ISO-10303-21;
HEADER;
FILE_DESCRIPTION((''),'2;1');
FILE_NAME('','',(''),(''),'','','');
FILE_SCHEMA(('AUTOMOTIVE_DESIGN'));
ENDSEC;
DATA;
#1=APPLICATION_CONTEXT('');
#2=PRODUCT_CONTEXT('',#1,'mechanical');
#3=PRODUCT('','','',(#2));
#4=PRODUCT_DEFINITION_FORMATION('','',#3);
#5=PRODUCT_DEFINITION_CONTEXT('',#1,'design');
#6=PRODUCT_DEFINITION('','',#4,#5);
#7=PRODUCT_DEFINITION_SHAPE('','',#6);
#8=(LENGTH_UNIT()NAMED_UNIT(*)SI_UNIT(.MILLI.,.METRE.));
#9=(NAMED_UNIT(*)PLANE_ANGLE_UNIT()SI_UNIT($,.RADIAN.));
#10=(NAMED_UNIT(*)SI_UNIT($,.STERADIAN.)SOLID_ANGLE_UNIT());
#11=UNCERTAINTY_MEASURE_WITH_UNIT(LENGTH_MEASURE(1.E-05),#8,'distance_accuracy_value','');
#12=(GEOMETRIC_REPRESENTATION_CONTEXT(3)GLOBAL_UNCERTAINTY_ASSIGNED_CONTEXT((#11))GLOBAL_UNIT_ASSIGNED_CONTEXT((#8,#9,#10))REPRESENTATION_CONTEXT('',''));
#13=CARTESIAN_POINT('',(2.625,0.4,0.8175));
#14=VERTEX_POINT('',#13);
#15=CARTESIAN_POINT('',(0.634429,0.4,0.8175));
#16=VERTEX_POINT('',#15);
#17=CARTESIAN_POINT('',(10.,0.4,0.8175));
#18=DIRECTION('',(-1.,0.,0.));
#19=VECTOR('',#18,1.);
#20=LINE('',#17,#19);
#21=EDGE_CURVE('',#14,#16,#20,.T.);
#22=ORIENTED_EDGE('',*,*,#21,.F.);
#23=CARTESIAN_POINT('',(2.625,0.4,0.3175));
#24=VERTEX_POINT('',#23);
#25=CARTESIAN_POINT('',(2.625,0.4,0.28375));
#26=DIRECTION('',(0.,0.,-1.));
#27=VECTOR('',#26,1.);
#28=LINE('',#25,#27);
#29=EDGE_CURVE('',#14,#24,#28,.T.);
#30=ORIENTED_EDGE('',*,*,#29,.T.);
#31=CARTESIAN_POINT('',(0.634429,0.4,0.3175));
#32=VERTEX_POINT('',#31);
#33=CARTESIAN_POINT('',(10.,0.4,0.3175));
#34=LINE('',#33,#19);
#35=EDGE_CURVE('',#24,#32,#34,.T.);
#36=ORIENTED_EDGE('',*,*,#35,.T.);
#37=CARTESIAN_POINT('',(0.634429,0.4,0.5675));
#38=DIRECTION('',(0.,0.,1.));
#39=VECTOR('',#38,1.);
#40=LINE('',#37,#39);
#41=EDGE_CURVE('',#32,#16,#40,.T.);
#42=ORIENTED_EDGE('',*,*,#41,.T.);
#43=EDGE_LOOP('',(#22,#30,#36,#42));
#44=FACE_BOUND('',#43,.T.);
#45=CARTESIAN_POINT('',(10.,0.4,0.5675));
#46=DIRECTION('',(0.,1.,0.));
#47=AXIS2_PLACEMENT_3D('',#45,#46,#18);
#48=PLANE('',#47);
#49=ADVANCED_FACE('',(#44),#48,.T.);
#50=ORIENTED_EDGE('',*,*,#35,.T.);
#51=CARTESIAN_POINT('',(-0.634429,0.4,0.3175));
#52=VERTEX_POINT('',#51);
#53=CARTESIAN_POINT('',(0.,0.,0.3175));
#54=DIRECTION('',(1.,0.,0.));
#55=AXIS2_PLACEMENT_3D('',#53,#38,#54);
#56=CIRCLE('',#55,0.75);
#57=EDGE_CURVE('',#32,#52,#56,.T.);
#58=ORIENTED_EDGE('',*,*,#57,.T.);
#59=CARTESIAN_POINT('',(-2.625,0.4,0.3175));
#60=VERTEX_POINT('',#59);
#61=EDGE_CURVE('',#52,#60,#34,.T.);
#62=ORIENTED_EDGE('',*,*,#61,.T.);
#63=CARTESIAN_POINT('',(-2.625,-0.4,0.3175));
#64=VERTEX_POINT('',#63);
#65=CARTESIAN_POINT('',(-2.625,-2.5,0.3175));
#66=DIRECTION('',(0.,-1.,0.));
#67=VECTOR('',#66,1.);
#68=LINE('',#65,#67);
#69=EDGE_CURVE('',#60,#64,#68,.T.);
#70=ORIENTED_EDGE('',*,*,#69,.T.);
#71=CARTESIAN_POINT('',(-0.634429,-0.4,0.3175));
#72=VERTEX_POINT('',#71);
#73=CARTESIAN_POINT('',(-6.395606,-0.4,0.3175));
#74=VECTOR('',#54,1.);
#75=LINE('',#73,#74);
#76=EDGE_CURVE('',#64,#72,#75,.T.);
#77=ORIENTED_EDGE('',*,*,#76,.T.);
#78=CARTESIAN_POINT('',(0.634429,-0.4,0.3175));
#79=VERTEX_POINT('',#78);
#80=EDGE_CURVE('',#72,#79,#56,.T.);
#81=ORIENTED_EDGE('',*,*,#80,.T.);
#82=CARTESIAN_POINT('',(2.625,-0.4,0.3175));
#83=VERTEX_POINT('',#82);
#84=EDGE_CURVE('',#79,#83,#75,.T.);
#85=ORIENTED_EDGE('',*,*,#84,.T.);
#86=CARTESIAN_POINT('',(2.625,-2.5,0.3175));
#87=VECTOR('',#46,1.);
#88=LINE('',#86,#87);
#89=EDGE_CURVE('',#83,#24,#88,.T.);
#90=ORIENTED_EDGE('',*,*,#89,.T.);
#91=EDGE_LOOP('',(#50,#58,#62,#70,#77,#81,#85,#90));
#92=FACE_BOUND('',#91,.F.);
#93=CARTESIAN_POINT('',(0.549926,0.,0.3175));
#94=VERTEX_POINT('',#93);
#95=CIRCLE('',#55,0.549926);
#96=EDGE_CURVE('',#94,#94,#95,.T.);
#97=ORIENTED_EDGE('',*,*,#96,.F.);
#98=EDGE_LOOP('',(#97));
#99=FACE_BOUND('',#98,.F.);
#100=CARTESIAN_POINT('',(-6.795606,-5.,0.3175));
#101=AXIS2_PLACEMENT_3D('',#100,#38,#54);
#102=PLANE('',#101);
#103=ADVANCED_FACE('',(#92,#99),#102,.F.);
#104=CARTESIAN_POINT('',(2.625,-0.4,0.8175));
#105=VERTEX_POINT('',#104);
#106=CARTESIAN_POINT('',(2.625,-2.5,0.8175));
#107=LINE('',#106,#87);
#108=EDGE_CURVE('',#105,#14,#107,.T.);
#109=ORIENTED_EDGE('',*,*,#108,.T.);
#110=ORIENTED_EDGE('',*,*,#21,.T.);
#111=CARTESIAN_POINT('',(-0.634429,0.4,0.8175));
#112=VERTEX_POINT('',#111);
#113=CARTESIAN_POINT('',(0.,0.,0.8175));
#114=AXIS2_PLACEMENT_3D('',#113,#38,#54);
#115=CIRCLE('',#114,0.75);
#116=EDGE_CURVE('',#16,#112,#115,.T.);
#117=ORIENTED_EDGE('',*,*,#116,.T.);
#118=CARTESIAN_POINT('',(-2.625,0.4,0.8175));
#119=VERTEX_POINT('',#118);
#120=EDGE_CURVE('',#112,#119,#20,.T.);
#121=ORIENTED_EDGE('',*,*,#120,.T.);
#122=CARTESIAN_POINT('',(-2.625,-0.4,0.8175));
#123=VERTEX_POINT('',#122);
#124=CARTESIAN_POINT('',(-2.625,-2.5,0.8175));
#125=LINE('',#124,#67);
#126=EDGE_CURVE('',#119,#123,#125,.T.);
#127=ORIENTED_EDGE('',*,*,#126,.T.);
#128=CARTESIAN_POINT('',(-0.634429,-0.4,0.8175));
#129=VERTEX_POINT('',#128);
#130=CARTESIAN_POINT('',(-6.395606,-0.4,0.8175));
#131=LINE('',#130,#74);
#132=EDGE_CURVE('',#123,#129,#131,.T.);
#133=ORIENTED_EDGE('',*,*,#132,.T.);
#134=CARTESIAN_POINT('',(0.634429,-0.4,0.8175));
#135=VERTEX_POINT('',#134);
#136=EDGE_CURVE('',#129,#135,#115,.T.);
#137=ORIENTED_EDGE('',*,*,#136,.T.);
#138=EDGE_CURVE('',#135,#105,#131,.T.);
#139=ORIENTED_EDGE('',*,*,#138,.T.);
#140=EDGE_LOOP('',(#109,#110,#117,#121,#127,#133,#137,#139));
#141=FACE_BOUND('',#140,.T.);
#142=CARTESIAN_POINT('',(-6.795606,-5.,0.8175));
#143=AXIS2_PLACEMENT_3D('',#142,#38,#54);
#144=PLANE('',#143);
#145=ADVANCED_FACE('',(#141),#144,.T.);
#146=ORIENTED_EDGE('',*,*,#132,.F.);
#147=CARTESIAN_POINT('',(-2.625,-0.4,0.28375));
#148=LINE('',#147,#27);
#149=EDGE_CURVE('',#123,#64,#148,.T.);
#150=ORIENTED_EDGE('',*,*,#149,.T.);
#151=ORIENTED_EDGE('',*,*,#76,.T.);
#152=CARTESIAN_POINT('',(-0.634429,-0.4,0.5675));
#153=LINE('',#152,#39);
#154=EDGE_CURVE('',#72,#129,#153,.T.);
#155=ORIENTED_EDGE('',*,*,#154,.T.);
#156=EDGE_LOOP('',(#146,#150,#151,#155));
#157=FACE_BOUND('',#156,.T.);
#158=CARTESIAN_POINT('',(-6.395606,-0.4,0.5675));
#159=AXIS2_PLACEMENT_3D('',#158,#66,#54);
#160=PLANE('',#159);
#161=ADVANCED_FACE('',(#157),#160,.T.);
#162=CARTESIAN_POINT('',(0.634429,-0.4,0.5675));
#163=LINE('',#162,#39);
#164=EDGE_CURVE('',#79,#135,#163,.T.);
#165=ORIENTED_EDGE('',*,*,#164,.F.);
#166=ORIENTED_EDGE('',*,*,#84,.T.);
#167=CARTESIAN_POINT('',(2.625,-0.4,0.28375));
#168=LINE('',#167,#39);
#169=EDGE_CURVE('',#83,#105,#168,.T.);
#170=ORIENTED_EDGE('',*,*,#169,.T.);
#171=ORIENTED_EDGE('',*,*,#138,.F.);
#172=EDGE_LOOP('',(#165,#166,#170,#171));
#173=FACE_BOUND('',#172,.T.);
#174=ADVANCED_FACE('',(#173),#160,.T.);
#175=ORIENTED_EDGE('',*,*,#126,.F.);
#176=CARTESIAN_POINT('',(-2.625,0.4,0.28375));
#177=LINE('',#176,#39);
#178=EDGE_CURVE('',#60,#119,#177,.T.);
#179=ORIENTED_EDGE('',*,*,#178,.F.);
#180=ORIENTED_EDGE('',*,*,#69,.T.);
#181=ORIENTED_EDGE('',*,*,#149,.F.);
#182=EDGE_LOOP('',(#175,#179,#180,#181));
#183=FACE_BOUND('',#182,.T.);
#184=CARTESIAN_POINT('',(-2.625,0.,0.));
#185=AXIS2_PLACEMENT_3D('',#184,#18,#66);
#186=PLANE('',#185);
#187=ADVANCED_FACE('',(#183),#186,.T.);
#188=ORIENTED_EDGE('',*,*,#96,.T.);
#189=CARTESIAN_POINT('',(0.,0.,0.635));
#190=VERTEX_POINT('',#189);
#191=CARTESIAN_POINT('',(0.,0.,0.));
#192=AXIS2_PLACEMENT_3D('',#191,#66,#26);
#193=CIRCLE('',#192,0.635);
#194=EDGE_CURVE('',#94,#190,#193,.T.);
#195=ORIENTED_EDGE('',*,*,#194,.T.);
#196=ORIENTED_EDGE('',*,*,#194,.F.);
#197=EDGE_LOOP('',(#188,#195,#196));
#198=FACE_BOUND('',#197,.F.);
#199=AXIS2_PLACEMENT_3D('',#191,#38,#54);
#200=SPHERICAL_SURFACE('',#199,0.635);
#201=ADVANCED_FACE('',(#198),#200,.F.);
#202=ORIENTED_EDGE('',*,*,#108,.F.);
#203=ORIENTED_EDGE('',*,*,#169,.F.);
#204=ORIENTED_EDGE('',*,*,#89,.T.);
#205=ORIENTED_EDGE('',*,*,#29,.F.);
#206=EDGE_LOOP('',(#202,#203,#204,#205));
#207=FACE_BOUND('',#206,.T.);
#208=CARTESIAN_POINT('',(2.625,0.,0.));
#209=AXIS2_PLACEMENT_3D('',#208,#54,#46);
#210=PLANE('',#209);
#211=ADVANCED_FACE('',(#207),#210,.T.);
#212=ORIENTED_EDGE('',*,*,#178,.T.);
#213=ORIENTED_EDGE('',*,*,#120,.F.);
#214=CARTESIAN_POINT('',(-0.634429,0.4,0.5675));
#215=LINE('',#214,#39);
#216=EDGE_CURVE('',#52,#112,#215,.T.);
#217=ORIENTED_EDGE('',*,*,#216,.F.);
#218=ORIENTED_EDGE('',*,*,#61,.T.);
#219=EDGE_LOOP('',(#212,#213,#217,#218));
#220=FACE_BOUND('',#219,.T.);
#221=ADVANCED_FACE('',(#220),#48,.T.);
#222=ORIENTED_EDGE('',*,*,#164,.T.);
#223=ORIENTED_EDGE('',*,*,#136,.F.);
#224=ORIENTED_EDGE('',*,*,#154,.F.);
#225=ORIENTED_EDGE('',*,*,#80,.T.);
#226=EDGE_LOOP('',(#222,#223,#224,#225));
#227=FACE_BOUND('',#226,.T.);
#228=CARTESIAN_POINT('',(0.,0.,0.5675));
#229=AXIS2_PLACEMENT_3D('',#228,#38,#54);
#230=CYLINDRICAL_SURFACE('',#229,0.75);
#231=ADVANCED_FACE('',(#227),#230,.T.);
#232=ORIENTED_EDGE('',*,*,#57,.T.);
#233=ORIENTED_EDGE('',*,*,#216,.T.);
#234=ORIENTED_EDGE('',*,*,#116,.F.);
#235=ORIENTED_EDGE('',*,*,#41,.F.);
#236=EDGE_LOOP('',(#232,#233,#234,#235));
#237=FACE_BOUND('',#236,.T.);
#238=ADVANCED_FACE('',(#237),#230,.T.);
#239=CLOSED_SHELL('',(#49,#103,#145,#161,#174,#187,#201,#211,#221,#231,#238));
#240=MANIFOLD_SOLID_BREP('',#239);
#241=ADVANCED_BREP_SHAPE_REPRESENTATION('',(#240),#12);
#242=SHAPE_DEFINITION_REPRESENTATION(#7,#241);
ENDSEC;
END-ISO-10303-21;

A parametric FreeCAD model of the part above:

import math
import FreeCAD as App
import Part
import Sketcher

V = App.Vector
Q = App.Units.Quantity

doc = App.newDocument("Part")
body = doc.addObject("PartDesign::Body", "Body")

# Sketch on XY plane
sketch1 = doc.addObject("Sketcher::SketchObject", "Sketch")
body.addObject(sketch1)
sketch1.AttachmentSupport = (doc.XY_Plane, [""])
sketch1.MapMode = "FlatFace"
sketch1.AttachmentOffset = App.Placement(V(0, 0, 0.5675), App.Rotation())
sketch1.addGeometry([
    Part.LineSegment(V(-7.2, 5, 0), V(-7.2, -5, 0)),  # 0
    Part.LineSegment(V(-7.2, -5, 0), V(-6.4, -5, 0)),  # 1
    Part.LineSegment(V(-6.4, -5, 0), V(-6.4, -0.4, 0)),  # 2
    Part.LineSegment(V(-6.4, -0.4, 0), V(10, -0.4, 0)),  # 3
    Part.LineSegment(V(10, -0.4, 0), V(10, 0.4, 0)),  # 4
    Part.LineSegment(V(10, 0.4, 0), V(-6.4, 0.4, 0)),  # 5
    Part.LineSegment(V(-6.4, 0.4, 0), V(-6.4, 5, 0)),  # 6
    Part.LineSegment(V(-6.4, 5, 0), V(-7.2, 5, 0)),  # 7
], False)
sketch1.addConstraint([
    Sketcher.Constraint("Coincident", 0, 2, 1, 1),
    Sketcher.Constraint("Coincident", 1, 2, 2, 1),
    Sketcher.Constraint("Coincident", 2, 2, 3, 1),
    Sketcher.Constraint("Coincident", 3, 2, 4, 1),
    Sketcher.Constraint("Coincident", 4, 2, 5, 1),
    Sketcher.Constraint("Coincident", 5, 2, 6, 1),
    Sketcher.Constraint("Coincident", 6, 2, 7, 1),
    Sketcher.Constraint("Coincident", 7, 2, 0, 1),
    Sketcher.Constraint("Vertical", 0),
    Sketcher.Constraint("Horizontal", 1),
    Sketcher.Constraint("Vertical", 2),
    Sketcher.Constraint("Horizontal", 3),
    Sketcher.Constraint("Vertical", 4),
    Sketcher.Constraint("Horizontal", 5),
    Sketcher.Constraint("Vertical", 6),
    Sketcher.Constraint("Horizontal", 7),
    Sketcher.Constraint("Symmetric", 2, 2, 5, 2, -1),
    Sketcher.Constraint("Equal", 7, 4),
    Sketcher.Constraint("Equal", 2, 6),
    Sketcher.Constraint("DistanceY", 0, 2, 0, 1, Q("10 mm")),
    Sketcher.Constraint("DistanceX", 1, 1, 1, 2, Q("0.8 mm")),
    Sketcher.Constraint("DistanceX", -1, 1, 3, 2, Q("10 mm")),
    Sketcher.Constraint("DistanceX", 3, 1, 3, 2, Q("16.395606 mm")),
])
pad1 = doc.addObject("PartDesign::Pad", "Pad")
body.addObject(pad1)
pad1.Profile = sketch1
pad1.Length = 0.5
pad1.Midplane = True

# Sketch on XY plane
sketch2 = doc.addObject("Sketcher::SketchObject", "Sketch001")
body.addObject(sketch2)
sketch2.AttachmentSupport = (doc.XY_Plane, [""])
sketch2.MapMode = "FlatFace"
sketch2.AttachmentOffset = App.Placement(V(0, 0, 0.5675), App.Rotation())
sketch2.addGeometry(Part.Circle(V(0, 0, 0), V(0, 0, 1), 0.8), False)
sketch2.addConstraint([
    Sketcher.Constraint("Coincident", 0, 3, -1, 1),
    Sketcher.Constraint("Diameter", 0, Q("1.5 mm")),
])
pad2 = doc.addObject("PartDesign::Pad", "Pad001")
body.addObject(pad2)
pad2.Profile = sketch2
pad2.Length = 0.5
pad2.Midplane = True

# Sketch on XY plane
sketch3 = doc.addObject("Sketcher::SketchObject", "Sketch002")
body.addObject(sketch3)
sketch3.AttachmentSupport = (doc.XY_Plane, [""])
sketch3.MapMode = "FlatFace"
sketch3.AttachmentOffset = App.Placement(V(0, 0, 0.5675), App.Rotation())
sketch3.addGeometry(Part.Circle(V(-6.8, 5, 0), V(0, 0, 1), 0.8), False)
sketch3.addConstraint([
    Sketcher.Constraint("Diameter", 0, Q("1.5 mm")),
    Sketcher.Constraint("DistanceY", -1, 1, 0, 3, Q("5 mm")),
    Sketcher.Constraint("DistanceX", 0, 3, -1, 1, Q("6.795606 mm")),
])
pad3 = doc.addObject("PartDesign::Pad", "Pad002")
body.addObject(pad3)
pad3.Profile = sketch3
pad3.Length = 0.5
pad3.Midplane = True

# Sketch on XY plane
sketch4 = doc.addObject("Sketcher::SketchObject", "Sketch003")
body.addObject(sketch4)
sketch4.AttachmentSupport = (doc.XY_Plane, [""])
sketch4.MapMode = "FlatFace"
sketch4.AttachmentOffset = App.Placement(V(0, 0, 0.5675), App.Rotation())
sketch4.addGeometry(Part.Circle(V(-6.8, -5, 0), V(0, 0, 1), 0.8), False)
sketch4.addConstraint([
    Sketcher.Constraint("Diameter", 0, Q("1.5 mm")),
    Sketcher.Constraint("DistanceY", 0, 3, -1, 1, Q("5 mm")),
    Sketcher.Constraint("DistanceX", 0, 3, -1, 1, Q("6.795606 mm")),
])
pad4 = doc.addObject("PartDesign::Pad", "Pad003")
body.addObject(pad4)
pad4.Profile = sketch4
pad4.Length = 0.5
pad4.Midplane = True

# Sketch on XZ plane
sketch5 = doc.addObject("Sketcher::SketchObject", "Sketch004")
body.addObject(sketch5)
sketch5.AttachmentSupport = (doc.XZ_Plane, [""])
sketch5.MapMode = "FlatFace"
sketch5.addGeometry([
    Part.ArcOfCircle(Part.Circle(V(0, 0, 0), V(0, 0, 1), 0.6), math.radians(-90), math.radians(90)),
    Part.LineSegment(V(0, 0.6, 0), V(0, -0.6, 0)),
], False)
sketch5.addConstraint([
    Sketcher.Constraint("Coincident", 0, 1, 1, 2),
    Sketcher.Constraint("Coincident", 1, 1, 0, 2),
    Sketcher.Constraint("Vertical", 1),
    Sketcher.Constraint("Coincident", 0, 3, -1, 1),
    Sketcher.Constraint("PointOnObject", 0, 1, -2),
    Sketcher.Constraint("Radius", 0, Q("0.635 mm")),
])
groove = doc.addObject("PartDesign::Groove", "Groove")
body.addObject(groove)
groove.Profile = sketch5
groove.ReferenceAxis = (sketch5, ["V_Axis"])
groove.Angle = 360

# Sketch on XZ plane
sketch6 = doc.addObject("Sketcher::SketchObject", "Sketch005")
body.addObject(sketch6)
sketch6.AttachmentSupport = (doc.XZ_Plane, [""])
sketch6.MapMode = "FlatFace"
sketch6.AttachmentOffset = App.Placement(V(0, 0, -5), App.Rotation())
sketch6.addGeometry([
    Part.ArcOfCircle(Part.Circle(V(-6.8, 1.1, 0), V(0, 0, 1), 0.6), math.radians(-90), math.radians(90)),
    Part.LineSegment(V(-6.8, 1.8, 0), V(-6.8, 0.5, 0)),
], False)
sketch6.addGeometry(Part.LineSegment(V(-6.8, 0.5, 0), V(-6.8, 1.8, 0)), True)  # axis
sketch6.addConstraint([
    Sketcher.Constraint("Coincident", 0, 1, 1, 2),
    Sketcher.Constraint("Coincident", 1, 1, 0, 2),
    Sketcher.Constraint("Vertical", 1),
    Sketcher.Constraint("Vertical", 2),
    Sketcher.Constraint("Coincident", 2, 1, 0, 1),
    Sketcher.Constraint("Equal", 1, 2),
    Sketcher.Constraint("Radius", 0, Q("0.635 mm")),
    Sketcher.Constraint("DistanceY", -1, 1, 0, 1, Q("0.5 mm")),
    Sketcher.Constraint("DistanceX", 0, 3, -1, 1, Q("6.795606 mm")),
    Sketcher.Constraint("DistanceX", 0, 1, -1, 1, Q("6.795606 mm")),
])
groove2 = doc.addObject("PartDesign::Groove", "Groove001")
body.addObject(groove2)
groove2.Profile = sketch6
groove2.ReferenceAxis = (sketch6, ["Axis0"])
groove2.Angle = 360

# Sketch on XZ plane
sketch7 = doc.addObject("Sketcher::SketchObject", "Sketch006")
body.addObject(sketch7)
sketch7.AttachmentSupport = (doc.XZ_Plane, [""])
sketch7.MapMode = "FlatFace"
sketch7.AttachmentOffset = App.Placement(V(0, 0, 5), App.Rotation())
sketch7.addGeometry([
    Part.ArcOfCircle(Part.Circle(V(-6.8, 1.1, 0), V(0, 0, 1), 0.6), math.radians(-90), math.radians(90)),
    Part.LineSegment(V(-6.8, 1.8, 0), V(-6.8, 0.5, 0)),
], False)
sketch7.addGeometry(Part.LineSegment(V(-6.8, 0.5, 0), V(-6.8, 1.8, 0)), True)  # axis
sketch7.addConstraint([
    Sketcher.Constraint("Coincident", 0, 1, 1, 2),
    Sketcher.Constraint("Coincident", 1, 1, 0, 2),
    Sketcher.Constraint("Vertical", 1),
    Sketcher.Constraint("Vertical", 2),
    Sketcher.Constraint("Coincident", 2, 1, 0, 1),
    Sketcher.Constraint("Equal", 1, 2),
    Sketcher.Constraint("Radius", 0, Q("0.635 mm")),
    Sketcher.Constraint("DistanceY", -1, 1, 0, 1, Q("0.5 mm")),
    Sketcher.Constraint("DistanceX", 0, 3, -1, 1, Q("6.795606 mm")),
    Sketcher.Constraint("DistanceX", 0, 1, -1, 1, Q("6.795606 mm")),
])
groove3 = doc.addObject("PartDesign::Groove", "Groove002")
body.addObject(groove3)
groove3.Profile = sketch7
groove3.ReferenceAxis = (sketch7, ["Axis0"])
groove3.Angle = 360

# Sketch on XZ plane
sketch8 = doc.addObject("Sketcher::SketchObject", "Sketch007")
body.addObject(sketch8)
sketch8.AttachmentSupport = (doc.XZ_Plane, [""])
sketch8.MapMode = "FlatFace"
sketch8.addGeometry(Part.Circle(V(6.8, 0.6, 0), V(0, 0, 1), 0.8), False)
sketch8.addConstraint([
    Sketcher.Constraint("Diameter", 0, Q("1.5 mm")),
    Sketcher.Constraint("DistanceX", -1, 1, 0, 3, Q("6.8 mm")),
    Sketcher.Constraint("DistanceY", -1, 1, 0, 3, Q("0.5675 mm")),
])
pad5 = doc.addObject("PartDesign::Pad", "Pad004")
body.addObject(pad5)
pad5.Profile = sketch8
pad5.Length = 0.8
pad5.Midplane = True

# Sketch on XZ plane
sketch9 = doc.addObject("Sketcher::SketchObject", "Sketch008")
body.addObject(sketch9)
sketch9.AttachmentSupport = (doc.XZ_Plane, [""])
sketch9.MapMode = "FlatFace"
sketch9.AttachmentOffset = App.Placement(V(0, 0, -0.7175), App.Rotation())
sketch9.addGeometry([
    Part.ArcOfCircle(Part.Circle(V(6.8, 0.6, 0), V(0, 0, 1), 0.6), math.radians(-90), math.radians(90)),
    Part.LineSegment(V(6.8, 1.2, 0), V(6.8, -0.1, 0)),
], False)
sketch9.addGeometry(Part.LineSegment(V(6.8, -0.1, 0), V(6.8, 1.2, 0)), True)  # axis
sketch9.addConstraint([
    Sketcher.Constraint("Coincident", 0, 1, 1, 2),
    Sketcher.Constraint("Coincident", 1, 1, 0, 2),
    Sketcher.Constraint("Vertical", 1),
    Sketcher.Constraint("Vertical", 2),
    Sketcher.Constraint("Coincident", 2, 1, 0, 1),
    Sketcher.Constraint("Equal", 1, 2),
    Sketcher.Constraint("Radius", 0, Q("0.635 mm")),
    Sketcher.Constraint("DistanceX", -1, 1, 0, 3, Q("6.8 mm")),
    Sketcher.Constraint("DistanceX", -1, 1, 0, 1, Q("6.8 mm")),
    Sketcher.Constraint("DistanceY", -1, 1, 0, 3, Q("0.5675 mm")),
])
groove4 = doc.addObject("PartDesign::Groove", "Groove003")
body.addObject(groove4)
groove4.Profile = sketch9
groove4.ReferenceAxis = (sketch9, ["Axis0"])
groove4.Angle = 360

# Sketch on YZ plane
sketch10 = doc.addObject("Sketcher::SketchObject", "Sketch009")
body.addObject(sketch10)
sketch10.AttachmentSupport = (doc.YZ_Plane, [""])
sketch10.MapMode = "FlatFace"
sketch10.AttachmentOffset = App.Placement(V(0, 0, -2.625), App.Rotation())
sketch10.addGeometry([
    Part.LineSegment(V(10, 10, 0), V(10, -10, 0)),
    Part.LineSegment(V(10, -10, 0), V(-10, -10, 0)),
    Part.LineSegment(V(-10, -10, 0), V(-10, 10, 0)),
    Part.LineSegment(V(-10, 10, 0), V(10, 10, 0)),
], False)
sketch10.addConstraint([
    Sketcher.Constraint("Coincident", 0, 2, 1, 1),
    Sketcher.Constraint("Coincident", 1, 2, 2, 1),
    Sketcher.Constraint("Coincident", 2, 2, 3, 1),
    Sketcher.Constraint("Coincident", 3, 2, 0, 1),
    Sketcher.Constraint("Vertical", 0),
    Sketcher.Constraint("Horizontal", 1),
    Sketcher.Constraint("Vertical", 2),
    Sketcher.Constraint("Horizontal", 3),
    Sketcher.Constraint("Symmetric", 0, 2, 2, 2, -1, 1),
    Sketcher.Constraint("Equal", 3, 0),
    Sketcher.Constraint("DistanceX", 1, 2, 1, 1, Q("20 mm")),
])
pocket1 = doc.addObject("PartDesign::Pocket", "Pocket")
body.addObject(pocket1)
pocket1.Profile = sketch10
pocket1.Type = "ThroughAll"

# Sketch on YZ plane
sketch11 = doc.addObject("Sketcher::SketchObject", "Sketch010")
body.addObject(sketch11)
sketch11.AttachmentSupport = (doc.YZ_Plane, [""])
sketch11.MapMode = "FlatFace"
sketch11.AttachmentOffset = App.Placement(V(0, 0, 2.625), App.Rotation())
sketch11.addGeometry([
    Part.LineSegment(V(-10, 10, 0), V(-10, -10, 0)),
    Part.LineSegment(V(-10, -10, 0), V(10, -10, 0)),
    Part.LineSegment(V(10, -10, 0), V(10, 10, 0)),
    Part.LineSegment(V(10, 10, 0), V(-10, 10, 0)),
], False)
sketch11.addConstraint([
    Sketcher.Constraint("Coincident", 0, 2, 1, 1),
    Sketcher.Constraint("Coincident", 1, 2, 2, 1),
    Sketcher.Constraint("Coincident", 2, 2, 3, 1),
    Sketcher.Constraint("Coincident", 3, 2, 0, 1),
    Sketcher.Constraint("Vertical", 0),
    Sketcher.Constraint("Horizontal", 1),
    Sketcher.Constraint("Vertical", 2),
    Sketcher.Constraint("Horizontal", 3),
    Sketcher.Constraint("Symmetric", 0, 2, 2, 2, -1, 1),
    Sketcher.Constraint("Equal", 3, 0),
    Sketcher.Constraint("DistanceX", 1, 1, 1, 2, Q("20 mm")),
])
pocket2 = doc.addObject("PartDesign::Pocket", "Pocket001")
body.addObject(pocket2)
pocket2.Profile = sketch11
pocket2.Type = "ThroughAll"
pocket2.Reversed = True

doc.recompute()
